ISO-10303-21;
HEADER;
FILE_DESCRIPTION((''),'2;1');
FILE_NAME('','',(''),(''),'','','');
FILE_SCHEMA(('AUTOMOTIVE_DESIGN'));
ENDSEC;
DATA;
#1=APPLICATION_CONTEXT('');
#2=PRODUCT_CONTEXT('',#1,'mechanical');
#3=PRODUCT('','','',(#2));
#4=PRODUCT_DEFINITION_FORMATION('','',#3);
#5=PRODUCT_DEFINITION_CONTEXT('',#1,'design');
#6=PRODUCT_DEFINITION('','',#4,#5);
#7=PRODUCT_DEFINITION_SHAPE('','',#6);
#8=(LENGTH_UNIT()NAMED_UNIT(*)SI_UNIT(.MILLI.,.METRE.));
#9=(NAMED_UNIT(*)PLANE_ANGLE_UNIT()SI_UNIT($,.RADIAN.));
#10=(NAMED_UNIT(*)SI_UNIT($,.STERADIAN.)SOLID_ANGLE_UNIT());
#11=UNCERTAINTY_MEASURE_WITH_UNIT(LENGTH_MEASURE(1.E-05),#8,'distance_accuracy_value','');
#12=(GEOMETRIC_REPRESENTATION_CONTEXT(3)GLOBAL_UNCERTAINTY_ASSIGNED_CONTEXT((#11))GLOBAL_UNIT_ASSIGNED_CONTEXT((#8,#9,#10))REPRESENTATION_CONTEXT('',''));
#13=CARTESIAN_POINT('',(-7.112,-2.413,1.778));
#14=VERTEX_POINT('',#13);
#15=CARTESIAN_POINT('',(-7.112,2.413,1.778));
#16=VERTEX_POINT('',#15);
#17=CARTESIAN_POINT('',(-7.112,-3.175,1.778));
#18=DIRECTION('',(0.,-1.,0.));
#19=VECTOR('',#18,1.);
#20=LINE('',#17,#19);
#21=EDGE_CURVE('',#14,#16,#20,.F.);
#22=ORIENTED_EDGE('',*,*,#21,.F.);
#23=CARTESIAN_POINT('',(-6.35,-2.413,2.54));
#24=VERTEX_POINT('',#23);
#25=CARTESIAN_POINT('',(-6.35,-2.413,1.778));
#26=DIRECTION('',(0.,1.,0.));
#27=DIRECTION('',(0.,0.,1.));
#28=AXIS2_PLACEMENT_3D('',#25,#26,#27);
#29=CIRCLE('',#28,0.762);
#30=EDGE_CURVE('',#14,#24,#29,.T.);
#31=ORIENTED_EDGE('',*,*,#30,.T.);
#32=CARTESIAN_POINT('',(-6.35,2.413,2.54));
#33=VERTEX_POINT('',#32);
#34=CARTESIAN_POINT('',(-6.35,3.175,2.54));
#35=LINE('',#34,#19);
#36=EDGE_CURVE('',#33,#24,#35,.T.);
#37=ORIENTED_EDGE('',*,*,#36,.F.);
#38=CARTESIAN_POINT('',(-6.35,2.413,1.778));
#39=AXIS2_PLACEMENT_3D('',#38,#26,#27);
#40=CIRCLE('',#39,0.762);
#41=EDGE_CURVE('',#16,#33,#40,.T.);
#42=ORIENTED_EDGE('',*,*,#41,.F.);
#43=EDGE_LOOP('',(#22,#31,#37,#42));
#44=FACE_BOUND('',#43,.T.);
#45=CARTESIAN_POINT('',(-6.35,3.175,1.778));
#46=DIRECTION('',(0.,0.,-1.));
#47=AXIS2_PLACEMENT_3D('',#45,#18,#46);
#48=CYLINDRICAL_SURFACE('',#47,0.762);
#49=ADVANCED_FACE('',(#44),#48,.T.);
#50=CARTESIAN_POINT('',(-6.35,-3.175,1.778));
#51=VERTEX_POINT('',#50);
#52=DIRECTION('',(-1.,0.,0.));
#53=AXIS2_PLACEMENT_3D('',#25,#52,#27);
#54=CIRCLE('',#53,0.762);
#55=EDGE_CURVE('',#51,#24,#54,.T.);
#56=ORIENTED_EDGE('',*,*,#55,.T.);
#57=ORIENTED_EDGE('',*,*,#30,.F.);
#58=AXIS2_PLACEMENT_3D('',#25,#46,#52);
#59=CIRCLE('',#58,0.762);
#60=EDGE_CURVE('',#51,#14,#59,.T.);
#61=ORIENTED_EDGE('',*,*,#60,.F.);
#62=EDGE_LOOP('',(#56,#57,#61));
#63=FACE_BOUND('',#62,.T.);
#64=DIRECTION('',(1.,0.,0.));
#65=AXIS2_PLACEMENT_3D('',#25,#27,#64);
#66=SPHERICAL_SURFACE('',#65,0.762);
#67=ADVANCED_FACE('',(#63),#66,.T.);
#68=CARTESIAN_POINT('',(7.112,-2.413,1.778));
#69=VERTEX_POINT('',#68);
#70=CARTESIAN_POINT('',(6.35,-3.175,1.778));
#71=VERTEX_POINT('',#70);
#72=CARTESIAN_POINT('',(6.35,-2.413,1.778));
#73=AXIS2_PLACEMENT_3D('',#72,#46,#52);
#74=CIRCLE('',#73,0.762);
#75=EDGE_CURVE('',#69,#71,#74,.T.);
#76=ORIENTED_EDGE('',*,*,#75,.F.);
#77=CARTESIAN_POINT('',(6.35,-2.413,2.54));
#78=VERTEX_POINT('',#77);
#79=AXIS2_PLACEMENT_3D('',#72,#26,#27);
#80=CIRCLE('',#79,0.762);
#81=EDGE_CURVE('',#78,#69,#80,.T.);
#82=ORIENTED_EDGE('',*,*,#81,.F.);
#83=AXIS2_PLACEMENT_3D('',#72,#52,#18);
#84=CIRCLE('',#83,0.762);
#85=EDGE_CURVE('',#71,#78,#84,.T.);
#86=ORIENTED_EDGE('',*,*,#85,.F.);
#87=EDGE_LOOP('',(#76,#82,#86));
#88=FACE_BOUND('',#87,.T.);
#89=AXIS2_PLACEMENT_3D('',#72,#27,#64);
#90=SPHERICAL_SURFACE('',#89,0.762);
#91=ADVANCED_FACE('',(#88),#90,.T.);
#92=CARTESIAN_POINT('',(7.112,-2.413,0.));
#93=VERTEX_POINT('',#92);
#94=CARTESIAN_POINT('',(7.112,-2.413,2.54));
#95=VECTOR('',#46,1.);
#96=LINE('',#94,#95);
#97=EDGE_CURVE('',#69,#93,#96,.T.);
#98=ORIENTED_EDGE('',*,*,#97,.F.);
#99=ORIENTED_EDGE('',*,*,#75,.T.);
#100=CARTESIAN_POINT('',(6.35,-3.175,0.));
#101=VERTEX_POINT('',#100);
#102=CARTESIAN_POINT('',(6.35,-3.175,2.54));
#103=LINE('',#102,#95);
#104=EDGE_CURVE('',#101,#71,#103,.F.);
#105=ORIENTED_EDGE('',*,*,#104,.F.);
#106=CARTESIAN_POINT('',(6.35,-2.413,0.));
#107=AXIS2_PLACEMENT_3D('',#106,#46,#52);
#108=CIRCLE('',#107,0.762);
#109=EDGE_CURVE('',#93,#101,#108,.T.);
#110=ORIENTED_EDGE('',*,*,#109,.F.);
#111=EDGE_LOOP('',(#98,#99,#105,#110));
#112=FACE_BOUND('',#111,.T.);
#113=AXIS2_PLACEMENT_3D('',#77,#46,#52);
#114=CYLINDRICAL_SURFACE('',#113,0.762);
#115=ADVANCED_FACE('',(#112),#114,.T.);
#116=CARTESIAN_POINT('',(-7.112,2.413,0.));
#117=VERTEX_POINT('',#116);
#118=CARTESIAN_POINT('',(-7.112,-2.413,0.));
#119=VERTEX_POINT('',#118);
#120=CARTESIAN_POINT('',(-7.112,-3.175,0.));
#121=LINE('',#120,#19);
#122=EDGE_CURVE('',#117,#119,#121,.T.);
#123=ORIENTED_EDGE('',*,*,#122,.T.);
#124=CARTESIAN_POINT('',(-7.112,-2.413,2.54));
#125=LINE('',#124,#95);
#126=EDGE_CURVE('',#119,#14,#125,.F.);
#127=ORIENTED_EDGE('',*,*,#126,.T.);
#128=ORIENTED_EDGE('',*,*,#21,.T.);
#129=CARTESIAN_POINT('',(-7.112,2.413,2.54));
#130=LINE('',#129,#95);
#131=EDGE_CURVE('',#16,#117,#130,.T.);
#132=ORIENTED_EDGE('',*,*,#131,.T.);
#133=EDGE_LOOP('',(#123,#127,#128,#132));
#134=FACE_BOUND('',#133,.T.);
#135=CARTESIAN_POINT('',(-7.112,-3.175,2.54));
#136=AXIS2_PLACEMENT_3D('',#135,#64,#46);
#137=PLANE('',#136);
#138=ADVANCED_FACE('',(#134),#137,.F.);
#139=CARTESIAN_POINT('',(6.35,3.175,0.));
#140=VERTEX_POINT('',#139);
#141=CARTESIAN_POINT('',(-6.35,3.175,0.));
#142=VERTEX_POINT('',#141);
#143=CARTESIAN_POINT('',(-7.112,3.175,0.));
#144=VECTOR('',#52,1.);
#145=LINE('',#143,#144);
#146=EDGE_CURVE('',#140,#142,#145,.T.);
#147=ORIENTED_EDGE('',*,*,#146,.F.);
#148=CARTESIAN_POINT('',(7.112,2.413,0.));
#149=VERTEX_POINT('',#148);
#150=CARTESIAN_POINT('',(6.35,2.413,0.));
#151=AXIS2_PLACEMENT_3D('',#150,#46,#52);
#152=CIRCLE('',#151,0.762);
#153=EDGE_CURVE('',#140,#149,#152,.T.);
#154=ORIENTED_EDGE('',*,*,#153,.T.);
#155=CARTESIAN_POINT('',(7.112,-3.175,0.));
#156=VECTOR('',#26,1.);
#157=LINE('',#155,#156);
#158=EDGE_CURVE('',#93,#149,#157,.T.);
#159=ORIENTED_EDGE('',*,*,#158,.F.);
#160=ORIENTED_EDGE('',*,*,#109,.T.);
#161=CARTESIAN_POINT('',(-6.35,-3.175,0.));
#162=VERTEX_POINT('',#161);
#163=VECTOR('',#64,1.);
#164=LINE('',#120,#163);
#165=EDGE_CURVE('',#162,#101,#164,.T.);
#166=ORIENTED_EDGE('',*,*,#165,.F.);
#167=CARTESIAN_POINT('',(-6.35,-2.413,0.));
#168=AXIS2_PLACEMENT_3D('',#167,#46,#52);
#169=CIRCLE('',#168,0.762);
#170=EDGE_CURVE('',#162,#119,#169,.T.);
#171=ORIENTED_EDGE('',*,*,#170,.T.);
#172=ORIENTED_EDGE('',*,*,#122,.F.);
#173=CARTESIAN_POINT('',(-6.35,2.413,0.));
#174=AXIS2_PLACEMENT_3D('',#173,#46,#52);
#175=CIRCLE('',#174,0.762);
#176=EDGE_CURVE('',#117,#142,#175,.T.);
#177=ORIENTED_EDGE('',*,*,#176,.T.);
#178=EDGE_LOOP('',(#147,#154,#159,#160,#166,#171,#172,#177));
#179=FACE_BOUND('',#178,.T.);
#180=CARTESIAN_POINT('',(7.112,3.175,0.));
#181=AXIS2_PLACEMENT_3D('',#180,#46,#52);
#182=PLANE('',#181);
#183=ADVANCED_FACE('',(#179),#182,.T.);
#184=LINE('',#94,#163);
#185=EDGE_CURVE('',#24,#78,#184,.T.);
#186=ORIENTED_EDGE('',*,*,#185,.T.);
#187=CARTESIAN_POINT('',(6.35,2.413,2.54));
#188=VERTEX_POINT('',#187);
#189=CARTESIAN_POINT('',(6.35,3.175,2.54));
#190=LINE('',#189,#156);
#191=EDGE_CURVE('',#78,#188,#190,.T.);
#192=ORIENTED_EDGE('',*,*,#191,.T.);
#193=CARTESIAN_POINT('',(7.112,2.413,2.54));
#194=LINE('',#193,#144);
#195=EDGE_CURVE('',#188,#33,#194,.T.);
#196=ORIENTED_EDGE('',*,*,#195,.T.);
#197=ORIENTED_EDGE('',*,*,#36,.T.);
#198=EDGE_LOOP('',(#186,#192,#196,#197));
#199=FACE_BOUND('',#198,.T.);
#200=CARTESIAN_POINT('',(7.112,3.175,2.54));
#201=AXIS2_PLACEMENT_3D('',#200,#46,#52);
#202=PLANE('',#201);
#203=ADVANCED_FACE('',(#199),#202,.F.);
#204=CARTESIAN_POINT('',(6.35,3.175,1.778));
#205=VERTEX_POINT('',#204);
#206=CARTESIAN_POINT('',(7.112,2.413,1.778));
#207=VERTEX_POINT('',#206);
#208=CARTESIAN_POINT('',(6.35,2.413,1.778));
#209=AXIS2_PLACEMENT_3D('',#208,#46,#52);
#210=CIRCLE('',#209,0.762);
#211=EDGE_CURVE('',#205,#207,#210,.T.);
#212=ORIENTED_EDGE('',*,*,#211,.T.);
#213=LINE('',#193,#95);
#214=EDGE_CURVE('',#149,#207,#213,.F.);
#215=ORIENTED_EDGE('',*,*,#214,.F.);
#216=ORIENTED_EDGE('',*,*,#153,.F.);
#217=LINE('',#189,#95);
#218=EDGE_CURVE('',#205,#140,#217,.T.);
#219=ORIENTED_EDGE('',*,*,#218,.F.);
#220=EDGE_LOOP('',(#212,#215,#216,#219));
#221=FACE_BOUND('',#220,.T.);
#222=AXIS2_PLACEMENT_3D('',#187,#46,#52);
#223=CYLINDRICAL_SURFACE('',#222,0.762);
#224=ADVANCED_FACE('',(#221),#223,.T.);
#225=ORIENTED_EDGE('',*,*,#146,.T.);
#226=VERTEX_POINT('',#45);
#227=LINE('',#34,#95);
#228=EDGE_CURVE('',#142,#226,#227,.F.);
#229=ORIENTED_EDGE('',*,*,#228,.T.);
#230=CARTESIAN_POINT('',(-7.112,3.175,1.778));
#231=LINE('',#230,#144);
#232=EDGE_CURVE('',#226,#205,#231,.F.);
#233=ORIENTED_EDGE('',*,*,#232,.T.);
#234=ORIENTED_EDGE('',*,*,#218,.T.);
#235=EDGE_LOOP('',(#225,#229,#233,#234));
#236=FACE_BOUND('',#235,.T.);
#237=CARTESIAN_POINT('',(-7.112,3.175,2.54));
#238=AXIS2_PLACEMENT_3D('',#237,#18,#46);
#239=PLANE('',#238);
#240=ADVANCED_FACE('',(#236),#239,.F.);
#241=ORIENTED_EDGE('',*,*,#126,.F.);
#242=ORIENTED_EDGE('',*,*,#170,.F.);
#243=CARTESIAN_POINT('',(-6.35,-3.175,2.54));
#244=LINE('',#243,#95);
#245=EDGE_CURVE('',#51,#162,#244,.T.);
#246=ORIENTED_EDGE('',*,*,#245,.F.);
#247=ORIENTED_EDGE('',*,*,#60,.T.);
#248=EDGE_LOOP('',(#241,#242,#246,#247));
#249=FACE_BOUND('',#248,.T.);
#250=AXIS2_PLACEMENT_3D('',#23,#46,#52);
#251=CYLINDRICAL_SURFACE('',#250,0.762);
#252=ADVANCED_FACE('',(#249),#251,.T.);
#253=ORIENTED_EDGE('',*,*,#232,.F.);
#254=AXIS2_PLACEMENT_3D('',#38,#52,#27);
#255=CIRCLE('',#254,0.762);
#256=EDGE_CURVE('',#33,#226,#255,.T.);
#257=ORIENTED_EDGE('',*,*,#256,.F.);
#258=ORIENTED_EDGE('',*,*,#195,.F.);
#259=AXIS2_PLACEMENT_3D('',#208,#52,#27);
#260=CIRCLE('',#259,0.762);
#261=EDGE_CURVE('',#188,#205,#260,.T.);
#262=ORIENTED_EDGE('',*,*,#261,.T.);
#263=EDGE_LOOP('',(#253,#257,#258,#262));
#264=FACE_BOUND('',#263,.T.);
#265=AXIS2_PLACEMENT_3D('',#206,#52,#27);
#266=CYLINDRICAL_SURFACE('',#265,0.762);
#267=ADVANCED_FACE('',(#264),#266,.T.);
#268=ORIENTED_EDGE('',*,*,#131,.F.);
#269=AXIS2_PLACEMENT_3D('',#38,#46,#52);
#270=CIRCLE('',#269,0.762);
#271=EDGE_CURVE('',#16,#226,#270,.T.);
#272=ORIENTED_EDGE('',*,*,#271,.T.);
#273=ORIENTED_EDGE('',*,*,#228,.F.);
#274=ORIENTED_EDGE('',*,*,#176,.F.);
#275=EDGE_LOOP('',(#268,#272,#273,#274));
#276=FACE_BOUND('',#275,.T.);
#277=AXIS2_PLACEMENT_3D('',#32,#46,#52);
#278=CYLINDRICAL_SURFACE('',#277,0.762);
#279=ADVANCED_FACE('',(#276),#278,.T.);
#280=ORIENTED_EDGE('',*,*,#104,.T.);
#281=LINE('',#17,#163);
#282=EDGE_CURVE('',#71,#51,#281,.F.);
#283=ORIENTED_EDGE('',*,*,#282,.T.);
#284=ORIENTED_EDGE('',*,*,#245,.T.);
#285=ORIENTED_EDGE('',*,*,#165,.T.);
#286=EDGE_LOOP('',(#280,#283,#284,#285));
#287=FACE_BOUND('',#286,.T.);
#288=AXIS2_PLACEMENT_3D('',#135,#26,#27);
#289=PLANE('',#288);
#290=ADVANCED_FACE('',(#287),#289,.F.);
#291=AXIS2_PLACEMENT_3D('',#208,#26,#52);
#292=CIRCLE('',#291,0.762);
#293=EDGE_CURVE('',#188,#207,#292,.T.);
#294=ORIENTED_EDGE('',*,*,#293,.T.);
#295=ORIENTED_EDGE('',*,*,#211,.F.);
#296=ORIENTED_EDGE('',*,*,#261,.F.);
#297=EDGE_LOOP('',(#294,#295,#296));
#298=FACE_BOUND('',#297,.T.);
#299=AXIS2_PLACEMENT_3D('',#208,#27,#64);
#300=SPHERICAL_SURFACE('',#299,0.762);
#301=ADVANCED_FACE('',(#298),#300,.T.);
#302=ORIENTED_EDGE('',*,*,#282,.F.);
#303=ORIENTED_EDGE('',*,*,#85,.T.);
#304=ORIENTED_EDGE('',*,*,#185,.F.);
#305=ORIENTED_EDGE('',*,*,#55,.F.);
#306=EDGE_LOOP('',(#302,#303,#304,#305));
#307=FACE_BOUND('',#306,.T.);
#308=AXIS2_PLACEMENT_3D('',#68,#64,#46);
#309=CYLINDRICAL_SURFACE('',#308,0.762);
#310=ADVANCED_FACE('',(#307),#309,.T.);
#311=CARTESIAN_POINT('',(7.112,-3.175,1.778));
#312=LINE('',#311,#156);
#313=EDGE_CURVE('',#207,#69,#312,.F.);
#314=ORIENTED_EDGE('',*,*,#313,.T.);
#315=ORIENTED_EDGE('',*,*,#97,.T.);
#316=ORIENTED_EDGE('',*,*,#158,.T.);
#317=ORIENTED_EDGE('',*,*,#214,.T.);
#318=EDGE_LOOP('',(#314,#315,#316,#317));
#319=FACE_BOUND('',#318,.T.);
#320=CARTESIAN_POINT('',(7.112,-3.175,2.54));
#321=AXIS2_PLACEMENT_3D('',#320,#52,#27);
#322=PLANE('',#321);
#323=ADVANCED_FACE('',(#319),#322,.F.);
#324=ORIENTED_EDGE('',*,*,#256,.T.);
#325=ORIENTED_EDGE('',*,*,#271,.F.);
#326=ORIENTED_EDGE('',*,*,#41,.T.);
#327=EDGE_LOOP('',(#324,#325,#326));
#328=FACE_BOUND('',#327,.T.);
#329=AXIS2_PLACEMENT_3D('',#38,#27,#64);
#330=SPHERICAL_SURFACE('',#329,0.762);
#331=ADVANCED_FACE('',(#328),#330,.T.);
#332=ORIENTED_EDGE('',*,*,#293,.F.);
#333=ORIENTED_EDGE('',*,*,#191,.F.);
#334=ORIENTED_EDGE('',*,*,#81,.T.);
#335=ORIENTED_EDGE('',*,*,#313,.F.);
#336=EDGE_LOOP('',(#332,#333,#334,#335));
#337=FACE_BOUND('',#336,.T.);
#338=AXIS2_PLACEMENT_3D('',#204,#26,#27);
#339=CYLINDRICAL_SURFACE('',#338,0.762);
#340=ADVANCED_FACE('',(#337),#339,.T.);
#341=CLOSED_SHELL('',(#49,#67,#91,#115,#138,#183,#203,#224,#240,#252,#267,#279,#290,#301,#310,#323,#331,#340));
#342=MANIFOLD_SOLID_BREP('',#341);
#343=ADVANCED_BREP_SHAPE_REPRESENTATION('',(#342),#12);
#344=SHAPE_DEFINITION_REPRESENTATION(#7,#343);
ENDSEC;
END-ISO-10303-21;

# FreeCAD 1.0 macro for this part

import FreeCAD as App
import Part
import Sketcher
from FreeCAD import Vector
Q = App.Units.Quantity


def edges_at(feature, points):
    """Names of the edges that pass closest to the given points."""
    edges = feature.Shape.Edges
    near = lambda p: min(range(len(edges)), key=lambda i: edges[i].distToShape(Part.Vertex(*p))[0])
    return sorted({f"Edge{near(p) + 1}" for p in points})

doc = App.newDocument("Part")
body = doc.addObject("PartDesign::Body", "Body")

sketch1 = doc.addObject("Sketcher::SketchObject", "Sketch")
body.addObject(sketch1)
sketch1.AttachmentSupport = (doc.XY_Plane, [""])
sketch1.MapMode = "FlatFace"
sketch1.addGeometry([
    Part.LineSegment(Vector(-7, 3, 0), Vector(-7, -3, 0)),
    Part.LineSegment(Vector(-7, -3, 0), Vector(7, -3, 0)),
    Part.LineSegment(Vector(7, -3, 0), Vector(7, 3, 0)),
    Part.LineSegment(Vector(7, 3, 0), Vector(-7, 3, 0)),
], False)
sketch1.addConstraint([
    Sketcher.Constraint("Coincident", 0, 2, 1, 1),
    Sketcher.Constraint("Coincident", 1, 2, 2, 1),
    Sketcher.Constraint("Coincident", 2, 2, 3, 1),
    Sketcher.Constraint("Coincident", 3, 2, 0, 1),
    Sketcher.Constraint("Vertical", 0),
    Sketcher.Constraint("Horizontal", 1),
    Sketcher.Constraint("Vertical", 2),
    Sketcher.Constraint("Horizontal", 3),
    Sketcher.Constraint("Symmetric", 0, 2, 2, 2, -1, 1),
    Sketcher.Constraint("DistanceX", 1, 1, 1, 2, Q("0.56 in")),
    Sketcher.Constraint("DistanceY", 0, 2, 0, 1, Q("0.25 in")),
])
pad1 = doc.addObject("PartDesign::Pad", "Pad")
body.addObject(pad1)
pad1.Profile = sketch1
pad1.Length = Q("0.1 in")
doc.recompute()

fillet = doc.addObject("PartDesign::Fillet", "Fillet")
body.addObject(fillet)
fillet.Base = (pad1, edges_at(pad1, [
    (7.112, -3.175, 1.27),
    (-7.112, -3.175, 1.27),
    (-7.112, 3.175, 1.27),
    (7.112, 3.175, 1.27),
]))
fillet.Radius = Q("0.03 in")
doc.recompute()

fillet2 = doc.addObject("PartDesign::Fillet", "Fillet001")
body.addObject(fillet2)
fillet2.Base = (fillet, edges_at(fillet, [
    (0, -3.175, 2.54),
    (-7.112, 0, 2.54),
    (7.112, 0, 2.54),
    (0, 3.175, 2.54),
    (6.889, -2.952, 2.54),
    (6.889, 2.952, 2.54),
    (-6.889, 2.952, 2.54),
    (-6.889, -2.952, 2.54),
]))
fillet2.Radius = Q("0.03 in")

doc.recompute()
